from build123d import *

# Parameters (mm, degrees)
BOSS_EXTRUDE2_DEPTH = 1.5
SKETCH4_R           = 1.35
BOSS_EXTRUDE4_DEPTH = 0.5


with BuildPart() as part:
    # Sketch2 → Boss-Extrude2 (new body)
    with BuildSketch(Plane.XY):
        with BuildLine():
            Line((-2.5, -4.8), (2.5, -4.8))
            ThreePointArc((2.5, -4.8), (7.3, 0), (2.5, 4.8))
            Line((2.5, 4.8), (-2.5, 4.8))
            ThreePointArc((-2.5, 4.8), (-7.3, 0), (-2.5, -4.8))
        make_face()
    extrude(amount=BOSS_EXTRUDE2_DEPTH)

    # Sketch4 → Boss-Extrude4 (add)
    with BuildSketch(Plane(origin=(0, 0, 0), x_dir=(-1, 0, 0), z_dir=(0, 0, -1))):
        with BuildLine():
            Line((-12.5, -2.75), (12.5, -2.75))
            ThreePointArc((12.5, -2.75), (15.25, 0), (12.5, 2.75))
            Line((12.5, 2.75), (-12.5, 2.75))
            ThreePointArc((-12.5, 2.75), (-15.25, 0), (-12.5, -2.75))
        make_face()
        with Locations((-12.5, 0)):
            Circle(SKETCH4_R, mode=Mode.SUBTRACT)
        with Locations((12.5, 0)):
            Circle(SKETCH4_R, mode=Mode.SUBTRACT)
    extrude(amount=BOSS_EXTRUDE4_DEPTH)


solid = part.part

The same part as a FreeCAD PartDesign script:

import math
import FreeCAD as App
import Part
import Sketcher

V = App.Vector

doc = App.newDocument("Part")
body = doc.addObject("PartDesign::Body", "Body")

# Sketch on XY plane
sketch1 = body.newObject("Sketcher::SketchObject", "Sketch")
sketch1.AttachmentSupport = (doc.getObject("XY_Plane"), [""])
sketch1.MapMode = "FlatFace"
sketch1.addGeometry([
    Part.LineSegment(V(-2.5, -4.8, 0), V(2.5, -4.8, 0)),
    Part.ArcOfCircle(Part.Circle(V(2.5, 0, 0), V(0, 0, 1), 4.8), math.radians(-90), math.radians(90)),
    Part.LineSegment(V(2.5, 4.8, 0), V(-2.5, 4.8, 0)),
    Part.ArcOfCircle(Part.Circle(V(-2.5, 0, 0), V(0, 0, 1), 4.8), math.radians(90), math.radians(270)),
], False)
sketch1.addConstraint([
    Sketcher.Constraint("Tangent", 0, 2, 1, 1),
    Sketcher.Constraint("Tangent", 1, 2, 2, 1),
    Sketcher.Constraint("Tangent", 2, 2, 3, 1),
    Sketcher.Constraint("Tangent", 3, 2, 0, 1),
    Sketcher.Constraint("Horizontal", 0),
    Sketcher.Constraint("Horizontal", 2),
    Sketcher.Constraint("Symmetric", 1, 3, 3, 3, -1, 1),
    Sketcher.Constraint("Radius", 1, 4.8),
    Sketcher.Constraint("DistanceX", 0, 1, 0, 2, 5.0),
])
pad1 = body.newObject("PartDesign::Pad", "Pad")
pad1.Profile = sketch1
pad1.Length = 1.5

# Sketch on XY plane
sketch2 = body.newObject("Sketcher::SketchObject", "Sketch001")
sketch2.AttachmentSupport = (doc.getObject("XY_Plane"), [""])
sketch2.MapMode = "FlatFace"
sketch2.addGeometry([
    Part.LineSegment(V(12.5, -2.8, 0), V(-12.5, -2.8, 0)),  # 0
    Part.ArcOfCircle(Part.Circle(V(-12.5, 0, 0), V(0, 0, 1), 2.8), math.radians(90), math.radians(270)),  # 1
    Part.LineSegment(V(-12.5, 2.8, 0), V(12.5, 2.8, 0)),  # 2
    Part.ArcOfCircle(Part.Circle(V(12.5, 0, 0), V(0, 0, 1), 2.8), math.radians(-90), math.radians(90)),  # 3
    Part.Circle(V(12.5, 0, 0), V(0, 0, 1), 1.4),  # 4
    Part.Circle(V(-12.5, 0, 0), V(0, 0, 1), 1.4),  # 5
], False)
sketch2.addConstraint([
    Sketcher.Constraint("Tangent", 0, 2, 1, 2),
    Sketcher.Constraint("Tangent", 1, 1, 2, 1),
    Sketcher.Constraint("Tangent", 2, 2, 3, 2),
    Sketcher.Constraint("Tangent", 3, 1, 0, 1),
    Sketcher.Constraint("Horizontal", 0),
    Sketcher.Constraint("Horizontal", 2),
    Sketcher.Constraint("Coincident", 4, 3, 3, 3),
    Sketcher.Constraint("Coincident", 5, 3, 1, 3),
    Sketcher.Constraint("Equal", 4, 5),
    Sketcher.Constraint("Symmetric", 1, 3, 3, 3, -1, 1),
    Sketcher.Constraint("Diameter", 4, 2.7),
    Sketcher.Constraint("DistanceX", 0, 2, 0, 1, 25.0),
    Sketcher.Constraint("Radius", 1, 2.75),
])
pad2 = body.newObject("PartDesign::Pad", "Pad001")
pad2.Profile = sketch2
pad2.Length = 0.5
pad2.Reversed = True

doc.recompute()
